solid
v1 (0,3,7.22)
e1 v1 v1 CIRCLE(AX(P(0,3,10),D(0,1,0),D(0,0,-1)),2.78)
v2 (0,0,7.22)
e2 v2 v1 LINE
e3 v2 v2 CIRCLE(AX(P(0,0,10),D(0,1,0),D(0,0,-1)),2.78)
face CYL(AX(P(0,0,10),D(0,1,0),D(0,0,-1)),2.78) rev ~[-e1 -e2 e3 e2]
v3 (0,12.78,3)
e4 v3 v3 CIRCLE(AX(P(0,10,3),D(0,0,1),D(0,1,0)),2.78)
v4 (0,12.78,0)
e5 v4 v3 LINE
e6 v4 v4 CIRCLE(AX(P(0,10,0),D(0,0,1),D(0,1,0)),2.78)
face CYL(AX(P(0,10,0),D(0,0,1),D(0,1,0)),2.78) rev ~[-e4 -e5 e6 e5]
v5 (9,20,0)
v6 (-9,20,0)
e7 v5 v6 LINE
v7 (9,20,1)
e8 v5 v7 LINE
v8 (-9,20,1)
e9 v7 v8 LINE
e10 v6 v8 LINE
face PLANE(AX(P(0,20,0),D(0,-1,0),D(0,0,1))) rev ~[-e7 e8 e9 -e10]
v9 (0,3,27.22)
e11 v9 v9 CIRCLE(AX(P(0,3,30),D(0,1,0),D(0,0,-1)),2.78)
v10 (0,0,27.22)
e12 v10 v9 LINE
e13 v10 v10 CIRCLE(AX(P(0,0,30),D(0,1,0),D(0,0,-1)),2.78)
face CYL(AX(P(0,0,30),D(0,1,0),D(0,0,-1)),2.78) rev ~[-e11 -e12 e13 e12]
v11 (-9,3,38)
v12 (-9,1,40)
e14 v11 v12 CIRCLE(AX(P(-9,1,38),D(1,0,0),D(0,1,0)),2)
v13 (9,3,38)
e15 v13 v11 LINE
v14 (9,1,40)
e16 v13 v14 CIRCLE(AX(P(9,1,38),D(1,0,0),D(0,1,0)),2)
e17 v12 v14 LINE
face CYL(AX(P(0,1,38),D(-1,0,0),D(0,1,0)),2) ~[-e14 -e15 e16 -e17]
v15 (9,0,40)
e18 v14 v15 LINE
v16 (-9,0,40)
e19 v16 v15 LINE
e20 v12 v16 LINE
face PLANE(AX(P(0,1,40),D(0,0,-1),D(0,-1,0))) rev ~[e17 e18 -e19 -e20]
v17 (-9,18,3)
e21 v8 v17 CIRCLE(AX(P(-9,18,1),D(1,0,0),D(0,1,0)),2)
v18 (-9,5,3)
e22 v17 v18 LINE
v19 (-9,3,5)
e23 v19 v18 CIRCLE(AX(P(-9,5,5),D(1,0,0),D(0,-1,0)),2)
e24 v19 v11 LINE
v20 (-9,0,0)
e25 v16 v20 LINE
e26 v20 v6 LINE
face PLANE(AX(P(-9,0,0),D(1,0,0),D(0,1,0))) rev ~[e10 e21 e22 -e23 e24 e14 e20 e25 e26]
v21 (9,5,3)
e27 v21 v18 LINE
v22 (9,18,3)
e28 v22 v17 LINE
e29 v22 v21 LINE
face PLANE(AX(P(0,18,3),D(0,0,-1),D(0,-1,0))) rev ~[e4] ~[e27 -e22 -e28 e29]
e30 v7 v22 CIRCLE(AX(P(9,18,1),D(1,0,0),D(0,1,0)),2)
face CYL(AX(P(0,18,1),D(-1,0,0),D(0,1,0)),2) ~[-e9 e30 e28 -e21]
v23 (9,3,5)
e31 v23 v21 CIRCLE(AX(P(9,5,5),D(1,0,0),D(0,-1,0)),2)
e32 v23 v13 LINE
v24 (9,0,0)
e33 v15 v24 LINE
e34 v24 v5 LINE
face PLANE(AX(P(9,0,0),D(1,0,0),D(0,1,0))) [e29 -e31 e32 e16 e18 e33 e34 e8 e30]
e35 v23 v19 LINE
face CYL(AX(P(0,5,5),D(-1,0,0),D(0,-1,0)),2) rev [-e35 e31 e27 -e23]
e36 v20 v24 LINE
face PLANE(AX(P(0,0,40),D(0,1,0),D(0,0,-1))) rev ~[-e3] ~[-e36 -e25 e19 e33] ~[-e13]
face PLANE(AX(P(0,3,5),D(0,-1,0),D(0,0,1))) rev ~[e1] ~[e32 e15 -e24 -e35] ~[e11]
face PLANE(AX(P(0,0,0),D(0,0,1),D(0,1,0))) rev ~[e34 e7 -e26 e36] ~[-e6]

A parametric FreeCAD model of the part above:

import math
import FreeCAD as App
import Part
import Sketcher
Q = App.Units.Quantity

doc = App.newDocument("Part")
body = doc.addObject("PartDesign::Body", "Body")

sketch1 = body.newObject("Sketcher::SketchObject", "Sketch")
sketch1.AttachmentSupport = (doc.getObject("YZ_Plane"), [""])
sketch1.MapMode = "FlatFace"
sketch1.addGeometry([
    Part.ArcOfCircle(Part.Circle(App.Vector(1, 38, 0), App.Vector(0, 0, 1), 2), math.radians(0), math.radians(90)),
    Part.LineSegment(App.Vector(1, 40, 0), App.Vector(0, 40, 0)),
    Part.LineSegment(App.Vector(0, 40, 0), App.Vector(0, 0, 0)),
    Part.LineSegment(App.Vector(0, 0, 0), App.Vector(20, 0, 0)),
    Part.LineSegment(App.Vector(20, 0, 0), App.Vector(20, 1, 0)),
    Part.ArcOfCircle(Part.Circle(App.Vector(18, 1, 0), App.Vector(0, 0, 1), 2), math.radians(0), math.radians(90)),
    Part.LineSegment(App.Vector(18, 3, 0), App.Vector(5, 3, 0)),
    Part.ArcOfCircle(Part.Circle(App.Vector(5, 5, 0), App.Vector(0, 0, 1), 2), math.radians(180), math.radians(270)),
    Part.LineSegment(App.Vector(3, 5, 0), App.Vector(3, 38, 0)),
], False)
sketch1.addConstraint([
    Sketcher.Constraint("Tangent", 0, 2, 1, 1),
    Sketcher.Constraint("Coincident", 1, 2, 2, 1),
    Sketcher.Constraint("Coincident", 2, 2, 3, 1),
    Sketcher.Constraint("Coincident", 3, 2, 4, 1),
    Sketcher.Constraint("Tangent", 4, 2, 5, 1),
    Sketcher.Constraint("Tangent", 5, 2, 6, 1),
    Sketcher.Constraint("Tangent", 6, 2, 7, 2),
    Sketcher.Constraint("Tangent", 7, 1, 8, 1),
    Sketcher.Constraint("Tangent", 8, 2, 0, 1),
    Sketcher.Constraint("Horizontal", 1),
    Sketcher.Constraint("Vertical", 2),
    Sketcher.Constraint("Horizontal", 3),
    Sketcher.Constraint("Vertical", 4),
    Sketcher.Constraint("Horizontal", 6),
    Sketcher.Constraint("Vertical", 8),
    Sketcher.Constraint("Coincident", 2, 2, -1, 1),
    Sketcher.Constraint("Equal", 0, 5),
    Sketcher.Constraint("Equal", 5, 7),
    Sketcher.Constraint("Equal", 1, 4),
    Sketcher.Constraint("Radius", 0, Q("2 mm")),
    Sketcher.Constraint("DistanceX", 1, 2, 1, 1, Q("1 mm")),
    Sketcher.Constraint("DistanceX", 3, 1, 3, 2, Q("20 mm")),
    Sketcher.Constraint("DistanceY", 2, 2, 2, 1, Q("40 mm")),
])
pad1 = body.newObject("PartDesign::Pad", "Pad")
pad1.Profile = sketch1
pad1.Length = 18
pad1.Midplane = True

sketch2 = body.newObject("Sketcher::SketchObject", "Sketch001")
sketch2.AttachmentSupport = (doc.getObject("XY_Plane"), [""])
sketch2.MapMode = "FlatFace"
sketch2.addGeometry(Part.Circle(App.Vector(0, 10, 0), App.Vector(0, 0, 1), 2.78), False)
sketch2.addConstraint([
    Sketcher.Constraint("PointOnObject", 0, 3, -2),
    Sketcher.Constraint("Diameter", 0, Q("5.56 mm")),
    Sketcher.Constraint("DistanceY", -1, 1, 0, 3, Q("10 mm")),
])
doc.recompute()
hole = body.newObject("PartDesign::Hole", "Hole")
hole.Profile = sketch2
hole.ThreadType = "None"
hole.Diameter = 5.56
hole.DepthType = "Dimension"
hole.Depth = 3
hole.DrillPoint = "Flat"
hole.Reversed = True

sketch3 = body.newObject("Sketcher::SketchObject", "Sketch002")
sketch3.AttachmentSupport = (doc.getObject("XZ_Plane"), [""])
sketch3.MapMode = "FlatFace"
sketch3.addGeometry(Part.Circle(App.Vector(0, 10, 0), App.Vector(0, 0, 1), 2.78), False)
sketch3.addConstraint([
    Sketcher.Constraint("PointOnObject", 0, 3, -2),
    Sketcher.Constraint("Diameter", 0, Q("5.56 mm")),
    Sketcher.Constraint("DistanceY", -1, 1, 0, 3, Q("10 mm")),
])
doc.recompute()
hole2 = body.newObject("PartDesign::Hole", "Hole001")
hole2.Profile = sketch3
hole2.ThreadType = "None"
hole2.Diameter = 5.56
hole2.DepthType = "Dimension"
hole2.Depth = 3
hole2.DrillPoint = "Flat"

sketch4 = body.newObject("Sketcher::SketchObject", "Sketch003")
sketch4.AttachmentSupport = (doc.getObject("XZ_Plane"), [""])
sketch4.MapMode = "FlatFace"
sketch4.addGeometry(Part.Circle(App.Vector(0, 30, 0), App.Vector(0, 0, 1), 2.78), False)
sketch4.addConstraint([
    Sketcher.Constraint("PointOnObject", 0, 3, -2),
    Sketcher.Constraint("Diameter", 0, Q("5.56 mm")),
    Sketcher.Constraint("DistanceY", -1, 1, 0, 3, Q("30 mm")),
])
doc.recompute()
hole3 = body.newObject("PartDesign::Hole", "Hole002")
hole3.Profile = sketch4
hole3.ThreadType = "None"
hole3.Diameter = 5.56
hole3.DepthType = "Dimension"
hole3.Depth = 3
hole3.DrillPoint = "Flat"

doc.recompute()
